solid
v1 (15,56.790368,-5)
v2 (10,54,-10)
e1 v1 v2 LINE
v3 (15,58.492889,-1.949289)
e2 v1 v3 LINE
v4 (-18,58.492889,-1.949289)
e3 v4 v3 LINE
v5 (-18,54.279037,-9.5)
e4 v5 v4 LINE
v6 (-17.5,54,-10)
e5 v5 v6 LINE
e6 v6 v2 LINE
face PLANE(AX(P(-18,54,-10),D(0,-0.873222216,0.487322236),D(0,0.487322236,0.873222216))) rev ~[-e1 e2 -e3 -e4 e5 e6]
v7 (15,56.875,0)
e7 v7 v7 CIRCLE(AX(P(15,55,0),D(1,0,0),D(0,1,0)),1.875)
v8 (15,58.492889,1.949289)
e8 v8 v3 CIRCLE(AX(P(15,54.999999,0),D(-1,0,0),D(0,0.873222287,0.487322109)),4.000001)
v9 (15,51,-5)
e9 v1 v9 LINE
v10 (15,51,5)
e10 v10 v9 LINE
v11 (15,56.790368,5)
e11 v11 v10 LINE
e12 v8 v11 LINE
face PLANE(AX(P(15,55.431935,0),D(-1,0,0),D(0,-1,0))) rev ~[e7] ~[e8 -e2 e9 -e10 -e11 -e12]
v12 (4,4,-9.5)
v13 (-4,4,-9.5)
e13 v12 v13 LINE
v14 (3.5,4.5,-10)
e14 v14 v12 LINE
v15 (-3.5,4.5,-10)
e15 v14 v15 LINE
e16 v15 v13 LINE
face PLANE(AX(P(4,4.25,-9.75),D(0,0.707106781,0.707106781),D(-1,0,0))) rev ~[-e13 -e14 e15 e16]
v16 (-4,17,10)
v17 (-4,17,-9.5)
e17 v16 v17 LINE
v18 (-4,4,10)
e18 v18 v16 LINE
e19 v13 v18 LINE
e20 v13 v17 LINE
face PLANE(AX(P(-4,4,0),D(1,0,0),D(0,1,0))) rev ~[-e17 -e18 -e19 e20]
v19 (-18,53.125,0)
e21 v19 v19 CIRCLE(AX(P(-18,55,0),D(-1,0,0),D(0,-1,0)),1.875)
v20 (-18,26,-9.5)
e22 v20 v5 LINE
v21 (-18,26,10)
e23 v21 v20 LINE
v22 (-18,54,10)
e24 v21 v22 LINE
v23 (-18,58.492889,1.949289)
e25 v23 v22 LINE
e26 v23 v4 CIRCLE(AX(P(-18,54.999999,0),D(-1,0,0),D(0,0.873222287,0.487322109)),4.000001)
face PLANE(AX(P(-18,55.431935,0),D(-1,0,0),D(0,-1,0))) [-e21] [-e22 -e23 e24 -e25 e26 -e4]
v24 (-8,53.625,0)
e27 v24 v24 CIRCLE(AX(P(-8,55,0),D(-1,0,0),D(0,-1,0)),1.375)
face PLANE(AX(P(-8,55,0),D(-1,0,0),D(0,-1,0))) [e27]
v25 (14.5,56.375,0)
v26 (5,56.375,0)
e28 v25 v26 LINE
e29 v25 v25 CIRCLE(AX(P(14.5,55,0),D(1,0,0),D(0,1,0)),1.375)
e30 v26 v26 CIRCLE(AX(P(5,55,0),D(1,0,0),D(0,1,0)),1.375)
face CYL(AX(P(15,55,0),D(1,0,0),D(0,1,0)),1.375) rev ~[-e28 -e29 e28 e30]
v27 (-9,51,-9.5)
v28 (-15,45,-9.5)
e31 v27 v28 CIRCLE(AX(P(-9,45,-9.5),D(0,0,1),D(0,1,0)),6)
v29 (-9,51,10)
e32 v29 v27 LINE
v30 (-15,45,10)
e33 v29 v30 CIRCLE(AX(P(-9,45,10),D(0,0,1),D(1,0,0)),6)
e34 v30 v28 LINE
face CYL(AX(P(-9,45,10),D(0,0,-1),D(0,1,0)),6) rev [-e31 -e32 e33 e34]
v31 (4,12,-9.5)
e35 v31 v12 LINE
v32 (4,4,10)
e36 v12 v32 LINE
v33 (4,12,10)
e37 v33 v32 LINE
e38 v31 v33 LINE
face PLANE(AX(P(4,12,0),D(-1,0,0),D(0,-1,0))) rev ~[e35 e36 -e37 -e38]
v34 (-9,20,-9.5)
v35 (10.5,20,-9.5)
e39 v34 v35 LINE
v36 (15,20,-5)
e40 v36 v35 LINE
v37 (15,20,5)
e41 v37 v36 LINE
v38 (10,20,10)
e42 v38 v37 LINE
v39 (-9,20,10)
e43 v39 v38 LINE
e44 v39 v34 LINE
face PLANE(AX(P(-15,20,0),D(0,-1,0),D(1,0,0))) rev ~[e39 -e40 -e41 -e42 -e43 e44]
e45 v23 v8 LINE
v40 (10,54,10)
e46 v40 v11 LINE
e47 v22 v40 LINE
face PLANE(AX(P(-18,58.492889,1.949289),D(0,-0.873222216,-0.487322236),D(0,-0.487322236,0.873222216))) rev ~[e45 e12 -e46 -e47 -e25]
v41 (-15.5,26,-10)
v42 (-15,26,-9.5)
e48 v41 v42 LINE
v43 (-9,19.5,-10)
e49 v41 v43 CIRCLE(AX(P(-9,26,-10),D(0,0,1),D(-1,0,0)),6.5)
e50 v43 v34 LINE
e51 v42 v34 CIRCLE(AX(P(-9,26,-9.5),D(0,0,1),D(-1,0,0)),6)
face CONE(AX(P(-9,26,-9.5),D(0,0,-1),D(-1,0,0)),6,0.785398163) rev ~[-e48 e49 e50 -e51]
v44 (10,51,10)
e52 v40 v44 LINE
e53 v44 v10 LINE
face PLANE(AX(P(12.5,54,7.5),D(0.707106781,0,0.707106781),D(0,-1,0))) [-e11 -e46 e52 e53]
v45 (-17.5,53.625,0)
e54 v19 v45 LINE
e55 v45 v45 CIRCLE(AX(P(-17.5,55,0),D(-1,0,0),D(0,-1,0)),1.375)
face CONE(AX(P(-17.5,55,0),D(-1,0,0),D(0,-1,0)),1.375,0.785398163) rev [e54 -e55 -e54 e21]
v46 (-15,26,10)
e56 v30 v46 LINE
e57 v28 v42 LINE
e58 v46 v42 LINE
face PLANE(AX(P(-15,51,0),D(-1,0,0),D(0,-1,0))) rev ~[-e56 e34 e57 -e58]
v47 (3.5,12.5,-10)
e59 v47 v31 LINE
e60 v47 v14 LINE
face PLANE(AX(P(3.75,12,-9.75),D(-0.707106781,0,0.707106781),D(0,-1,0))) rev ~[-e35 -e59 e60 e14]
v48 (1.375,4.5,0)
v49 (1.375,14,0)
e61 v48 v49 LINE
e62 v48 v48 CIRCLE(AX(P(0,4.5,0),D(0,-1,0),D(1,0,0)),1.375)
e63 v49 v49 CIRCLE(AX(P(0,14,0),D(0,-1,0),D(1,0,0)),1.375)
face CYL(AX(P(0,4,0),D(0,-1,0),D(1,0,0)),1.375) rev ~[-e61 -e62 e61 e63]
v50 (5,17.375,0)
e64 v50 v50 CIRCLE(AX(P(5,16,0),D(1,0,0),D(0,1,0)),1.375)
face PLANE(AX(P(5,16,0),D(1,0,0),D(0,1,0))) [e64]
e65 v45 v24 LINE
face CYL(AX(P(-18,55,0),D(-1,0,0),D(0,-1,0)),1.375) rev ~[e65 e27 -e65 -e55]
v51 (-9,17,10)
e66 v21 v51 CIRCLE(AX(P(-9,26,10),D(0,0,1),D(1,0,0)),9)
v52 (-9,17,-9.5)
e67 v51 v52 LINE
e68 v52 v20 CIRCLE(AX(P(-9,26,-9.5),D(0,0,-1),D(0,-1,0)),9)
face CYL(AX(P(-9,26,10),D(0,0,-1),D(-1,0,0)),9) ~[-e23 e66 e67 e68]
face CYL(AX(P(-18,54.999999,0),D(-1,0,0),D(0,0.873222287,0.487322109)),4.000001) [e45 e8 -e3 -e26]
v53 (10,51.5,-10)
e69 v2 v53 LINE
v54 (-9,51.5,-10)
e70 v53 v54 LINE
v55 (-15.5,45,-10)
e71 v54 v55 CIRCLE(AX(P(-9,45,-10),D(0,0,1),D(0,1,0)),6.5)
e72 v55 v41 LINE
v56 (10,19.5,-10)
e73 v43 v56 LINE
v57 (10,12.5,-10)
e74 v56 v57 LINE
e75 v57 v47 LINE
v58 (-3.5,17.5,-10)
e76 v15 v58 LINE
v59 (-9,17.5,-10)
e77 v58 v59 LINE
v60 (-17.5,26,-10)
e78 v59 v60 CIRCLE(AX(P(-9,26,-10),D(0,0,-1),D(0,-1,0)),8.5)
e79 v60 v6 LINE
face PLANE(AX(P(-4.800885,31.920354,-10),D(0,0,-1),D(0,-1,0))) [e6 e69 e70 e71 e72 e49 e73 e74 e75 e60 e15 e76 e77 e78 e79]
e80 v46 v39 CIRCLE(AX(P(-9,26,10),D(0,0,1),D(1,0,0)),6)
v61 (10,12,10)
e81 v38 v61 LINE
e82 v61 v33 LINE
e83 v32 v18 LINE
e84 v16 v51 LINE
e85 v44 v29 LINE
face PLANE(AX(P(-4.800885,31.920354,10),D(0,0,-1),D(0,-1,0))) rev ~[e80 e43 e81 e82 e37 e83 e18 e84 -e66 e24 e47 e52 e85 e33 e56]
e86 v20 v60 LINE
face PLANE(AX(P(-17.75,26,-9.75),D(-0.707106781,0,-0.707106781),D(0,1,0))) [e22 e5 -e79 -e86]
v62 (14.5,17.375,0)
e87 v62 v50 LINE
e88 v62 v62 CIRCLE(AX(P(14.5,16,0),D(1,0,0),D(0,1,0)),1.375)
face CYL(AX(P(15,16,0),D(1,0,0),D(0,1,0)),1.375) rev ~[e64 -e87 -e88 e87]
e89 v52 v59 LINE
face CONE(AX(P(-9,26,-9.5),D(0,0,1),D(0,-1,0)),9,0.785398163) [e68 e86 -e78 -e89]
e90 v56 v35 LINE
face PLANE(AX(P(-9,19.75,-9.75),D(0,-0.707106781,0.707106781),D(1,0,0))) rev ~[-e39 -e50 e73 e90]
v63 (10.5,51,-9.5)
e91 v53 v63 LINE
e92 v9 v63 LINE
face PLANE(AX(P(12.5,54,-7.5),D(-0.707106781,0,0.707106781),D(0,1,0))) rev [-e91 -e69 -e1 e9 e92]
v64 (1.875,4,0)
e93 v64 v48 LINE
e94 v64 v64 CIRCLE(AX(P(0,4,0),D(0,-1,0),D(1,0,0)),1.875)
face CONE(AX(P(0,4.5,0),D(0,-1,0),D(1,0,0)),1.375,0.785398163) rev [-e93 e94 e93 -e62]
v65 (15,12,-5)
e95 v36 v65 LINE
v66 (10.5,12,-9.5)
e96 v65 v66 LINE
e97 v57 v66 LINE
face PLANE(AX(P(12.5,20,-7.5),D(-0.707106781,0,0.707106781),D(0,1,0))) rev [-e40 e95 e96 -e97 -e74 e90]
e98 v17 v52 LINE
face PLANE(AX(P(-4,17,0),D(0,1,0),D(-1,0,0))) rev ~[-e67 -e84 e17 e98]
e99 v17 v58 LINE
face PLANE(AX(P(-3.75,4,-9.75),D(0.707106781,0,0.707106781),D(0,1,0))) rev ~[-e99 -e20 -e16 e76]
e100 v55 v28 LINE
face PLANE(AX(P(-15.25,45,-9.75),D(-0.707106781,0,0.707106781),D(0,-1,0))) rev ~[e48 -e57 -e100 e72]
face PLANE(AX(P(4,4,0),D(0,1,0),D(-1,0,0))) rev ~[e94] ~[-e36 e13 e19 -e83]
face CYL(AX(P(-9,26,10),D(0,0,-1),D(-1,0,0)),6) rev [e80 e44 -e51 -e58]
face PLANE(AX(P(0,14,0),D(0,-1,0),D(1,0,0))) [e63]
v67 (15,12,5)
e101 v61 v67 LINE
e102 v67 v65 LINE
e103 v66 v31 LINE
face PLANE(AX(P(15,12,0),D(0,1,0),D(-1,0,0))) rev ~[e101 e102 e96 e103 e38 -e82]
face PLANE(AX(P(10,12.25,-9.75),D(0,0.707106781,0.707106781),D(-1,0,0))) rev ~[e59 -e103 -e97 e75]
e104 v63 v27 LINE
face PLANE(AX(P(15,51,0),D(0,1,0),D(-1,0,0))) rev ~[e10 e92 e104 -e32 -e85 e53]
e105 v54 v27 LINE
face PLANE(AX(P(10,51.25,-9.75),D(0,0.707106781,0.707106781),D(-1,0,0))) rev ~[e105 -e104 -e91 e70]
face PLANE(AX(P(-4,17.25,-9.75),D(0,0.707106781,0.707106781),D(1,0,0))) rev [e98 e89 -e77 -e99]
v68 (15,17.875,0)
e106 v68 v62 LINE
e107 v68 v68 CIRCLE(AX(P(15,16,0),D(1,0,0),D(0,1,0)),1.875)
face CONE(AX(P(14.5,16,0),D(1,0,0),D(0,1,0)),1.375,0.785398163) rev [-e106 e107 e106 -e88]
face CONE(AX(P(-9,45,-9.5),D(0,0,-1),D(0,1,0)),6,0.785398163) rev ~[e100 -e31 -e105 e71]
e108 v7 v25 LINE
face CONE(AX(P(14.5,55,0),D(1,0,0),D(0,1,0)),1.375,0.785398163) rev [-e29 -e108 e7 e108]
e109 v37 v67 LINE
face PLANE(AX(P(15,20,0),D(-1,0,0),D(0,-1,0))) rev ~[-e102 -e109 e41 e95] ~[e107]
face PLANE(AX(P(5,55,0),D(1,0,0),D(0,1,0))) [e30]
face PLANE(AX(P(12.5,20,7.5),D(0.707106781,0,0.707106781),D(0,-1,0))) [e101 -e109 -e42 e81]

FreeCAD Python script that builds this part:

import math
import FreeCAD as App
import Part
import Sketcher
from FreeCAD import Vector
Q = App.Units.Quantity


def edges_at(feature, points):
    """Names of the edges that pass closest to the given points."""
    edges = feature.Shape.Edges
    near = lambda p: min(range(len(edges)), key=lambda i: edges[i].distToShape(Part.Vertex(*p))[0])
    return sorted({f"Edge{near(p) + 1}" for p in points})


def add_polygon(sketch, points):
    """Adds a closed chain of lines whose ends are joined by coincident constraints."""
    first, n = sketch.GeometryCount, len(points)
    for a, b in zip(points, points[1:] + points[:1]):
        sketch.addGeometry(Part.LineSegment(App.Vector(*a, 0), App.Vector(*b, 0)), False)
    for i in range(n):
        sketch.addConstraint(Sketcher.Constraint("Coincident", first + i, 2, first + (i + 1) % n, 1))

doc = App.newDocument("Part")
body = doc.addObject("PartDesign::Body", "Body")

sketch1 = body.newObject("Sketcher::SketchObject", "Sketch")
sketch1.AttachmentSupport = (doc.getObject("YZ_Plane"), [""])
sketch1.MapMode = "FlatFace"
add_polygon(sketch1, [(17, 4), (4, 4), (4, -4), (12, -4), (12, -15), (20, -15), (20, 15), (51, 15), (51, -15), (54, -15), (54, 18), (17, 18)])
sketch1.addConstraint([
    Sketcher.Constraint("Horizontal", 0),
    Sketcher.Constraint("Vertical", 1),
    Sketcher.Constraint("Horizontal", 2),
    Sketcher.Constraint("Vertical", 3),
    Sketcher.Constraint("Horizontal", 4),
    Sketcher.Constraint("Vertical", 5),
    Sketcher.Constraint("Horizontal", 6),
    Sketcher.Constraint("Vertical", 7),
    Sketcher.Constraint("Horizontal", 8),
    Sketcher.Constraint("Vertical", 9),
    Sketcher.Constraint("Horizontal", 10),
    Sketcher.Constraint("Vertical", 11),
    Sketcher.Constraint("Horizontal", 4, 2, 7, 2),
    Sketcher.Constraint("Equal", 2, 4),
    Sketcher.Constraint("Equal", 4, 1),
    Sketcher.Constraint("DistanceX", 0, 2, 0, 1, Q("13 mm")),
    Sketcher.Constraint("DistanceX", 2, 1, 2, 2, Q("8 mm")),
    Sketcher.Constraint("DistanceX", 6, 1, 6, 2, Q("31 mm")),
    Sketcher.Constraint("DistanceX", 8, 1, 8, 2, Q("3 mm")),
    Sketcher.Constraint("DistanceY", 3, 2, 3, 1, Q("11 mm")),
    Sketcher.Constraint("DistanceY", 5, 1, 5, 2, Q("30 mm")),
    Sketcher.Constraint("DistanceY", 9, 1, 9, 2, Q("33 mm")),
    Sketcher.Constraint("DistanceX", -1, 1, 0, 2, Q("4 mm")),
    Sketcher.Constraint("DistanceY", -1, 1, 0, 2, Q("4 mm")),
])
pad1 = body.newObject("PartDesign::Pad", "Pad")
pad1.Profile = sketch1
pad1.Length = 20
pad1.Midplane = True

sketch2 = body.newObject("Sketcher::SketchObject", "Sketch001")
sketch2.AttachmentSupport = (doc.getObject("XZ_Plane"), [""])
sketch2.MapMode = "FlatFace"
sketch2.AttachmentOffset = App.Placement(Vector(0, 0, -4), App.Rotation())
sketch2.addGeometry(Part.Circle(Vector(0, 0, 0), Vector(0, 0, 1), 1.375), False)
sketch2.addConstraint([
    Sketcher.Constraint("Coincident", 0, 3, -1, 1),
    Sketcher.Constraint("Diameter", 0, Q("2.75 mm")),
])
pocket1 = body.newObject("PartDesign::Pocket", "Pocket")
pocket1.Profile = sketch2
pocket1.Length = 10

sketch3 = body.newObject("Sketcher::SketchObject", "Sketch002")
sketch3.AttachmentSupport = (doc.getObject("XY_Plane"), [""])
sketch3.MapMode = "FlatFace"
sketch3.AttachmentOffset = App.Placement(Vector(0, 0, 18), App.Rotation())
sketch3.addGeometry([
    Part.ArcOfCircle(Part.Circle(Vector(0, 54.999999, 0), Vector(0, 0, 1), 4.000001), math.radians(60.835277), math.radians(119.164723)),
    Part.LineSegment(Vector(-1.949289, 58.492889, 0), Vector(-10, 54, 0)),
    Part.LineSegment(Vector(-10, 54, 0), Vector(10, 54, 0)),
    Part.LineSegment(Vector(10, 54, 0), Vector(1.949289, 58.492889, 0)),
], False)
sketch3.addConstraint([
    Sketcher.Constraint("Tangent", 0, 2, 1, 1),
    Sketcher.Constraint("Coincident", 1, 2, 2, 1),
    Sketcher.Constraint("Coincident", 2, 2, 3, 1),
    Sketcher.Constraint("Tangent", 3, 2, 0, 1),
    Sketcher.Constraint("Horizontal", 2),
    Sketcher.Constraint("Symmetric", 0, 2, 3, 2, -2),
    Sketcher.Constraint("Radius", 0, Q("4.000001 mm")),
    Sketcher.Constraint("DistanceX", 2, 1, 2, 2, Q("20 mm")),
    Sketcher.Constraint("DistanceY", -1, 1, 0, 3, Q("54.999999 mm")),
    Sketcher.Constraint("DistanceY", -1, 1, 1, 2, Q("54 mm")),
])
pad2 = body.newObject("PartDesign::Pad", "Pad001")
pad2.Profile = sketch3
pad2.Length = 33
pad2.Reversed = True

sketch4 = body.newObject("Sketcher::SketchObject", "Sketch003")
sketch4.AttachmentSupport = (doc.getObject("XY_Plane"), [""])
sketch4.MapMode = "FlatFace"
sketch4.AttachmentOffset = App.Placement(Vector(0, 0, 18), App.Rotation())
sketch4.addGeometry(Part.Circle(Vector(0, 55, 0), Vector(0, 0, 1), 1.375), False)
sketch4.addConstraint([
    Sketcher.Constraint("PointOnObject", 0, 3, -2),
    Sketcher.Constraint("Diameter", 0, Q("2.75 mm")),
    Sketcher.Constraint("DistanceY", -1, 1, 0, 3, Q("55 mm")),
])
pocket2 = body.newObject("PartDesign::Pocket", "Pocket001")
pocket2.Profile = sketch4
pocket2.Length = 10

sketch5 = body.newObject("Sketcher::SketchObject", "Sketch004")
sketch5.AttachmentSupport = (doc.getObject("XY_Plane"), [""])
sketch5.MapMode = "FlatFace"
sketch5.AttachmentOffset = App.Placement(Vector(0, 0, -15), App.Rotation())
sketch5.addGeometry([
    Part.Circle(Vector(0, 55, 0), Vector(0, 0, 1), 1.375),
    Part.Circle(Vector(0, 16, 0), Vector(0, 0, 1), 1.375),
], False)
sketch5.addConstraint([
    Sketcher.Constraint("Equal", 0, 1),
    Sketcher.Constraint("PointOnObject", 0, 3, -2),
    Sketcher.Constraint("PointOnObject", 1, 3, -2),
    Sketcher.Constraint("Diameter", 0, Q("2.75 mm")),
    Sketcher.Constraint("DistanceY", -1, 1, 0, 3, Q("55 mm")),
    Sketcher.Constraint("DistanceY", -1, 1, 1, 3, Q("16 mm")),
])
pocket3 = body.newObject("PartDesign::Pocket", "Pocket002")
pocket3.Profile = sketch5
pocket3.Length = 10
pocket3.Reversed = True
doc.recompute()

fillet = body.newObject("PartDesign::Fillet", "Fillet")
fillet.Base = (pocket3, edges_at(pocket3, [(0, 17, 18)]))
fillet.Radius = 9
doc.recompute()

fillet2 = body.newObject("PartDesign::Fillet", "Fillet001")
fillet2.Base = (fillet, edges_at(fillet, [(0, 20, 15), (0, 51, 15)]))
fillet2.Radius = 6
doc.recompute()

chamfer = body.newObject("PartDesign::Chamfer", "Chamfer")
chamfer.Base = (fillet2, edges_at(fillet2, [
    (-10, 52.5, -15),
    (-10, 16, -15),
    (10, 52.5, -15),
    (10, 16, -15),
]))
chamfer.Size = 5
doc.recompute()

chamfer2 = body.newObject("PartDesign::Chamfer", "Chamfer001")
chamfer2.Base = (chamfer, edges_at(chamfer, [
    (0, 56.375, 18),
    (0, 4, 1.375),
    (0, 53.625, -15),
    (0, 14.625, -15),
]))
chamfer2.Size = 0.5
doc.recompute()

chamfer3 = body.newObject("PartDesign::Chamfer", "Chamfer002")
chamfer3.Base = (chamfer2, edges_at(chamfer2, [
    (-10, 40, 18),
    (-10, 51, -0.5),
    (-10, 19.636, 15.364),
    (-10, 49.243, 13.243),
    (-10, 17, 6.5),
    (-10, 35.5, 15),
    (-10, 10.5, 4),
    (-10, 21.757, 13.243),
    (-10, 4, 0),
    (-10, 20, -0.5),
    (-10, 8, -4),
    (-10, 12, -7),
]))
chamfer3.Size = 0.5
body2 = doc.addObject("PartDesign::Body", "Body001")
doc.recompute()

body.Placement = App.Placement(Vector(0, 0, 0), App.Rotation(Vector(0, 1, 0), 270))
boolean = body2.newObject("PartDesign::Boolean", "Boolean")
boolean.Type = "Fuse"
boolean.addObjects([body])

doc.recompute()
